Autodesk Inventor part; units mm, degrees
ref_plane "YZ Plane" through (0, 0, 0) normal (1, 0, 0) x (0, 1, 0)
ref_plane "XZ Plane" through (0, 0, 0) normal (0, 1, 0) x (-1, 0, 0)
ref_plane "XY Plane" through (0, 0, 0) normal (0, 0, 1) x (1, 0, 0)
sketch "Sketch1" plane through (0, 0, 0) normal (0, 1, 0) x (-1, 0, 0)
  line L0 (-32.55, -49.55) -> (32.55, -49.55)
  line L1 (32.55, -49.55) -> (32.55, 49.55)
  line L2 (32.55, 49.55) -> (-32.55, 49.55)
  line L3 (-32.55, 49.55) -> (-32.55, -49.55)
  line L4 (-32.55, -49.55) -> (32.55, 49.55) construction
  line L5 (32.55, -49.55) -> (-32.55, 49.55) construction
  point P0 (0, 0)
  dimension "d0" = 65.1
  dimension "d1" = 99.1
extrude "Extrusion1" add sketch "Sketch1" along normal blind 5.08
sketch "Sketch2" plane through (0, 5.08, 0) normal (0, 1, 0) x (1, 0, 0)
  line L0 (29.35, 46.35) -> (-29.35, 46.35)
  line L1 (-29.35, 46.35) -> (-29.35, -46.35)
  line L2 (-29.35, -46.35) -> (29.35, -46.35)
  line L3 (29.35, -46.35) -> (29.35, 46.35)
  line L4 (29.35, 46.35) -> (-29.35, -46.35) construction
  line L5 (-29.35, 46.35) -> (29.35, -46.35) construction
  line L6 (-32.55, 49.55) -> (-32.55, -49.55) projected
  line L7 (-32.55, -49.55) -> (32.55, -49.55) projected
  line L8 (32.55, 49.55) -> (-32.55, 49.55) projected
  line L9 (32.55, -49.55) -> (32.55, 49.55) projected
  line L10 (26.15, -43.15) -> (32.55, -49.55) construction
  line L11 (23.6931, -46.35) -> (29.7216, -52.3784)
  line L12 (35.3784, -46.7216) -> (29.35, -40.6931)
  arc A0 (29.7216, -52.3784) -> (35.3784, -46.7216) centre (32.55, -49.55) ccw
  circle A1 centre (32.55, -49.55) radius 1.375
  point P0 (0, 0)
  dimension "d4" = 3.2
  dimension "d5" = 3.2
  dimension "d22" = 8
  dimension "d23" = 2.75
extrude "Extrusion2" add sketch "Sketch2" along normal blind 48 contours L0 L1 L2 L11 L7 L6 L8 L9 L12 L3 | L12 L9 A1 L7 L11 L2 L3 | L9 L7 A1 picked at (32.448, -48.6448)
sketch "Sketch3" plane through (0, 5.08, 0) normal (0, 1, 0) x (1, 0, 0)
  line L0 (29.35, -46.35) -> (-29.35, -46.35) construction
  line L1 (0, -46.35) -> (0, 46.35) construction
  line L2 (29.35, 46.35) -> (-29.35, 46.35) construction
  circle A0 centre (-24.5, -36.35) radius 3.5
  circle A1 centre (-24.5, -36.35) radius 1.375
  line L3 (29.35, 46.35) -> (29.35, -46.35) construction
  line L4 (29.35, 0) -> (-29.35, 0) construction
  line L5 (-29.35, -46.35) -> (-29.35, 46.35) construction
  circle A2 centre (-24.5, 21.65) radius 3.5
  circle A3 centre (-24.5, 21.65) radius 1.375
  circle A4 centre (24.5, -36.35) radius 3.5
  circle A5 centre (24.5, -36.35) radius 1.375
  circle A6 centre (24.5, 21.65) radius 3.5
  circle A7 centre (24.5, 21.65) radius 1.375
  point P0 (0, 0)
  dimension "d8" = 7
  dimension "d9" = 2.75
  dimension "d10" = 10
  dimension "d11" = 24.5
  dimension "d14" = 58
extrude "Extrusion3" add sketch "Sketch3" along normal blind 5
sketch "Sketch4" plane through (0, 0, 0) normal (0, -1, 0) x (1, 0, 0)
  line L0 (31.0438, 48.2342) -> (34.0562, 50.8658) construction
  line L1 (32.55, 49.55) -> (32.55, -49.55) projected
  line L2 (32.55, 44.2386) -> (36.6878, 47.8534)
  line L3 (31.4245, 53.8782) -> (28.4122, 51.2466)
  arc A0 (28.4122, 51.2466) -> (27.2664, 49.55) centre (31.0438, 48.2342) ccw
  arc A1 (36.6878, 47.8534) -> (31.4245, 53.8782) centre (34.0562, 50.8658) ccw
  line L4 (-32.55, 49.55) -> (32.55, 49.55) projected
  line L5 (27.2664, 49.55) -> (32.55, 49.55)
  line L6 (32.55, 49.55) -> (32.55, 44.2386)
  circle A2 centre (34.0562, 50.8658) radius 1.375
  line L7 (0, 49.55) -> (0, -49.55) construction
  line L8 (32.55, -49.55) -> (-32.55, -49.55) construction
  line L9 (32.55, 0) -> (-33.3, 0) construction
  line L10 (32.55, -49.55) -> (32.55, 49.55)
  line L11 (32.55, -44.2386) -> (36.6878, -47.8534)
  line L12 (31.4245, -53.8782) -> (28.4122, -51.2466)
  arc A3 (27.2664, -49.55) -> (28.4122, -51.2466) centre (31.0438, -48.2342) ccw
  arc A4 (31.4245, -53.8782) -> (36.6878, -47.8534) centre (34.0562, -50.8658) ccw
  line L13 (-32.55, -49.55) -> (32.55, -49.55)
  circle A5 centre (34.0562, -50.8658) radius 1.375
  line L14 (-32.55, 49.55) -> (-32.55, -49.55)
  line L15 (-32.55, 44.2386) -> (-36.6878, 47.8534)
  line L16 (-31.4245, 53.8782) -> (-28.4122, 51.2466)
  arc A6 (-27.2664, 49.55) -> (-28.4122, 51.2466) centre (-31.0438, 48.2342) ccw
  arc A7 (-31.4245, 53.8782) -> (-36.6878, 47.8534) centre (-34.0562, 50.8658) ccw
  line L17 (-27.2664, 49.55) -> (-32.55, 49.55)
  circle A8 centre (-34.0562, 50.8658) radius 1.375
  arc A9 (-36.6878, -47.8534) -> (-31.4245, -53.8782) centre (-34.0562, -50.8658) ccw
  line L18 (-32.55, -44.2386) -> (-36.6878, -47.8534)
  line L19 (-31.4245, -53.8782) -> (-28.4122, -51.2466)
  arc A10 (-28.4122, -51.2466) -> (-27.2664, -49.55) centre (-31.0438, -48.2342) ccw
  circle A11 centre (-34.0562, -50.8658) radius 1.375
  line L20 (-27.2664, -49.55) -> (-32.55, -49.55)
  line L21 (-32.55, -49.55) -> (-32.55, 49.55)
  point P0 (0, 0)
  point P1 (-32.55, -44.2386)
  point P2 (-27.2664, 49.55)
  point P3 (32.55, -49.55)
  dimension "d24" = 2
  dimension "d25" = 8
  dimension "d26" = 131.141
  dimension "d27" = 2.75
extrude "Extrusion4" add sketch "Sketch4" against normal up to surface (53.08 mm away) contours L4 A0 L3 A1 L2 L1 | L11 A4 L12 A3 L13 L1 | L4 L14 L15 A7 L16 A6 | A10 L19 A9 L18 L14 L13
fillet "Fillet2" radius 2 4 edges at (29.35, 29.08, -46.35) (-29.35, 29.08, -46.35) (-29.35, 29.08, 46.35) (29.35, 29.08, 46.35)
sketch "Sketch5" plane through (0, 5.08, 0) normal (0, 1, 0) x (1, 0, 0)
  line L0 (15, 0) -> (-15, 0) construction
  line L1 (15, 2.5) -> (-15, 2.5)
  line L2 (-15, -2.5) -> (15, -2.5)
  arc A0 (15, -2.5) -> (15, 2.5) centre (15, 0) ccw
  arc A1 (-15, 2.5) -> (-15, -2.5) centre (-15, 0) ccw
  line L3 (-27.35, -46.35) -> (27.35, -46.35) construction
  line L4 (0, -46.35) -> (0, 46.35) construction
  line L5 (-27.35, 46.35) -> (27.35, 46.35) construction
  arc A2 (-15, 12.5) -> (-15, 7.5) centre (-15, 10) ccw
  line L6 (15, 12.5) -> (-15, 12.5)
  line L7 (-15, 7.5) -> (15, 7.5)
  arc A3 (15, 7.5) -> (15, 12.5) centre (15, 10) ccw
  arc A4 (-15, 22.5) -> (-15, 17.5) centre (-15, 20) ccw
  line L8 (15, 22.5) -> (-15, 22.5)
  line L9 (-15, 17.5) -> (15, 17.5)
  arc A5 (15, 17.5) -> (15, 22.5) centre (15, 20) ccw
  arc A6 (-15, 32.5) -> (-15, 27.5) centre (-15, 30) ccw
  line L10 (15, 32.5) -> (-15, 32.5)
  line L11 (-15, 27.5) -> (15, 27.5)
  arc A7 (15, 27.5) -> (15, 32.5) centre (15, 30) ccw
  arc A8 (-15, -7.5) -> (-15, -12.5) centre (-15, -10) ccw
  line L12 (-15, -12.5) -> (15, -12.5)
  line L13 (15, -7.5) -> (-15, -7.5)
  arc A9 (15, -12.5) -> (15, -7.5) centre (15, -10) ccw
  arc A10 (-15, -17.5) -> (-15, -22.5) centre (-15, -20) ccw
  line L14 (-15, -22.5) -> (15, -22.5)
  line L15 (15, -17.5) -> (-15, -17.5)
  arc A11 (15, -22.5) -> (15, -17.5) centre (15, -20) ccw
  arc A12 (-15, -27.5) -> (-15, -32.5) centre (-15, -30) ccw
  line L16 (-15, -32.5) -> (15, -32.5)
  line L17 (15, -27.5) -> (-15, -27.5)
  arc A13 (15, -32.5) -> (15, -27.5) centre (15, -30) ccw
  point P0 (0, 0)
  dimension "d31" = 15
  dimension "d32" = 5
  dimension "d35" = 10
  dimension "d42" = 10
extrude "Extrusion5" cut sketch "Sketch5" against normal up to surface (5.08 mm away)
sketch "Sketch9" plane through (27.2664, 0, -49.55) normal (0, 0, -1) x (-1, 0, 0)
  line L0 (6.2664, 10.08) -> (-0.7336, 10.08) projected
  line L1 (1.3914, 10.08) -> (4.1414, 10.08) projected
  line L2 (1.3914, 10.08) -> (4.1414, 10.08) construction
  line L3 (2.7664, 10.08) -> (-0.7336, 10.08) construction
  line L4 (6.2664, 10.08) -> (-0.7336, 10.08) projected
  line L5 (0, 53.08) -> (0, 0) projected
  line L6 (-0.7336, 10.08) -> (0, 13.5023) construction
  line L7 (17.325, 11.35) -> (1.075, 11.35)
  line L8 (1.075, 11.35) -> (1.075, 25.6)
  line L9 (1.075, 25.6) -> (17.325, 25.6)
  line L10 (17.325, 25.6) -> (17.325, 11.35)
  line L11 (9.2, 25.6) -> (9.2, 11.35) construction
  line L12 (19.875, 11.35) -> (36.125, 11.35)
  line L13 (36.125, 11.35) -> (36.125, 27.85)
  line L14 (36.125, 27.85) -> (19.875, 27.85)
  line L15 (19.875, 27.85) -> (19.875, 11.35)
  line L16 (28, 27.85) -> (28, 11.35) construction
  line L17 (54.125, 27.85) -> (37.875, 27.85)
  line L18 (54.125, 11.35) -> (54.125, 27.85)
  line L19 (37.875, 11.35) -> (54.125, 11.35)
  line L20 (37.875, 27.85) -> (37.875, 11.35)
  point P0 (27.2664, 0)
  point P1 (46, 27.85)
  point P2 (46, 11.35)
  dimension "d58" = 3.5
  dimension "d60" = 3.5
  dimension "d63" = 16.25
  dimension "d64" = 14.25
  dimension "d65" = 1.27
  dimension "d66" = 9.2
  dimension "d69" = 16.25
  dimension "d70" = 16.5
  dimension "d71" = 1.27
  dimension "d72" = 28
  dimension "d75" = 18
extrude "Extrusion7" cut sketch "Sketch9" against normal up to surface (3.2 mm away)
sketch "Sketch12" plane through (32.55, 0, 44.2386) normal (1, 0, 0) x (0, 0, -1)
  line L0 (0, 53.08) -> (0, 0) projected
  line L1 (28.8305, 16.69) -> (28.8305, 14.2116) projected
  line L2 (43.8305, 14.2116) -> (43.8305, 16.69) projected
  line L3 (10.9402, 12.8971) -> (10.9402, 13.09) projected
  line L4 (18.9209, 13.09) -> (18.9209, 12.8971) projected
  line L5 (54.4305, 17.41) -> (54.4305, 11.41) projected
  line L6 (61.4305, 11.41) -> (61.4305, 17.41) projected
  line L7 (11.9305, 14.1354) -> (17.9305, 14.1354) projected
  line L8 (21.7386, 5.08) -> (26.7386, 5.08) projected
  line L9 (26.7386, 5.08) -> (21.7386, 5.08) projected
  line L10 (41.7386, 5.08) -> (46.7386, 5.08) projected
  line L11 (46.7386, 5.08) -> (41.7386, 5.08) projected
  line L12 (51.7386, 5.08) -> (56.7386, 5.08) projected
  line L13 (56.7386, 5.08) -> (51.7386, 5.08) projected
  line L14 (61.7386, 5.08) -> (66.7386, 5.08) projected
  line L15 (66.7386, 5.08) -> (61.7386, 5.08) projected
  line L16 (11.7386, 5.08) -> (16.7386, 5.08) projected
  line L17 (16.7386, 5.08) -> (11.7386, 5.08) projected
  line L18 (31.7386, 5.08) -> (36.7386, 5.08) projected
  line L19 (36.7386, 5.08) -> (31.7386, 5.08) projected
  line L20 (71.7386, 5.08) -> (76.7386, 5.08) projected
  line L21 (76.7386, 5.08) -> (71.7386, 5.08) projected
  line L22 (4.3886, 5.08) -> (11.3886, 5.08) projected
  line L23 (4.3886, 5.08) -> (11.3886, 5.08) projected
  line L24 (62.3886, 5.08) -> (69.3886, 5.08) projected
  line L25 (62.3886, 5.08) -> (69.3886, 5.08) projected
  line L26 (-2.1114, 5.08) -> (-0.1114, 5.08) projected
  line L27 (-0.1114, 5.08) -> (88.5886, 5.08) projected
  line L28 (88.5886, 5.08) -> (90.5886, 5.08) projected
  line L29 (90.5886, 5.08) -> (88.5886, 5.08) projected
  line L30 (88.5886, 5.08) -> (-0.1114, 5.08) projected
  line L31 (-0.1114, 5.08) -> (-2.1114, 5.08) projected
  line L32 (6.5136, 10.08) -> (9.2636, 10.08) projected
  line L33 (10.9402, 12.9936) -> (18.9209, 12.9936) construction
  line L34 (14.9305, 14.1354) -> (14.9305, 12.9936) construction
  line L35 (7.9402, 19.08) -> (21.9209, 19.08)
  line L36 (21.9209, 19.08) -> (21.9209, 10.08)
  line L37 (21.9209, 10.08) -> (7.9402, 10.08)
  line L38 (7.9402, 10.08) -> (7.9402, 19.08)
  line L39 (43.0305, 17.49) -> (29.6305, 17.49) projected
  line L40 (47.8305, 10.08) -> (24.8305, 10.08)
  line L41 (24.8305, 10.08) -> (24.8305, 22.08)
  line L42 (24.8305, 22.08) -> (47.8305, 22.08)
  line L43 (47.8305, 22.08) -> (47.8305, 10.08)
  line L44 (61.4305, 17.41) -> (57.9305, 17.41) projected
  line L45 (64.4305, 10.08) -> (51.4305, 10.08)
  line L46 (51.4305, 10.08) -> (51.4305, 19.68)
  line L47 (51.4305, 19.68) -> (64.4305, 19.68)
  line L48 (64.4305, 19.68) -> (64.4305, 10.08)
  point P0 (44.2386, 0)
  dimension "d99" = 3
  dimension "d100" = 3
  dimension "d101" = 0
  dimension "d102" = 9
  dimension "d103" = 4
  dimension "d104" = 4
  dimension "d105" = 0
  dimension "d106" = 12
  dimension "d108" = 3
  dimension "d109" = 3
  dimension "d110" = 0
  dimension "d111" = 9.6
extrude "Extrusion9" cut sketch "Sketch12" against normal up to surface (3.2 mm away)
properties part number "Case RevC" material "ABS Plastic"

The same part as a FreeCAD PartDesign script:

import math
import FreeCAD as App
import Part
import Sketcher

V = App.Vector
Q = App.Units.Quantity


def edges_at(feature, points):
    """Names of the edges that pass closest to the given points."""
    edges = feature.Shape.Edges
    near = lambda p: min(range(len(edges)), key=lambda i: edges[i].distToShape(Part.Vertex(*p))[0])
    return sorted({f"Edge{near(p) + 1}" for p in points})

doc = App.newDocument("Part")
body = doc.addObject("PartDesign::Body", "Body")

# Sketch on XZ plane
sketch1 = doc.addObject("Sketcher::SketchObject", "Sketch")
body.addObject(sketch1)
sketch1.AttachmentSupport = (doc.XZ_Plane, [""])
sketch1.MapMode = "FlatFace"
sketch1.addGeometry(Part.LineSegment(V(32.55, 49.55, 0), V(32.55, -49.55, 0)), False)
sketch1.addGeometry(Part.LineSegment(V(32.55, -49.55, 0), V(-32.55, -49.55, 0)), False)
sketch1.addGeometry(Part.LineSegment(V(-32.55, -49.55, 0), V(-32.55, 49.55, 0)), False)
sketch1.addGeometry(Part.LineSegment(V(-32.55, 49.55, 0), V(32.55, 49.55, 0)), False)
sketch1.addConstraint(Sketcher.Constraint("Coincident", 0, 2, 1, 1))
sketch1.addConstraint(Sketcher.Constraint("Coincident", 1, 2, 2, 1))
sketch1.addConstraint(Sketcher.Constraint("Coincident", 2, 2, 3, 1))
sketch1.addConstraint(Sketcher.Constraint("Coincident", 3, 2, 0, 1))
sketch1.addConstraint(Sketcher.Constraint("Vertical", 0))
sketch1.addConstraint(Sketcher.Constraint("Horizontal", 1))
sketch1.addConstraint(Sketcher.Constraint("Vertical", 2))
sketch1.addConstraint(Sketcher.Constraint("Horizontal", 3))
sketch1.addConstraint(Sketcher.Constraint("Symmetric", 0, 2, 2, 2, -1, 1))
sketch1.addConstraint(Sketcher.Constraint("DistanceX", 1, 2, 1, 1, Q("65.1 mm")))
sketch1.addConstraint(Sketcher.Constraint("DistanceY", 0, 2, 0, 1, Q("99.1 mm")))
pad1 = doc.addObject("PartDesign::Pad", "Pad")
body.addObject(pad1)
pad1.Profile = sketch1
pad1.Length = 5.08
pad1.Reversed = True

# Sketch on XZ plane
sketch2 = doc.addObject("Sketcher::SketchObject", "Sketch001")
body.addObject(sketch2)
sketch2.AttachmentSupport = (doc.XZ_Plane, [""])
sketch2.MapMode = "FlatFace"
sketch2.AttachmentOffset = App.Placement(V(0, 0, -5.08), App.Rotation())
sketch2.addGeometry(Part.LineSegment(V(-32.55, 49.55, 0), V(32.55, 49.55, 0)), False)
sketch2.addGeometry(Part.LineSegment(V(32.55, 49.55, 0), V(32.55, -49.55, 0)), False)
sketch2.addGeometry(Part.LineSegment(V(32.55, -49.55, 0), V(-32.55, -49.55, 0)), False)
sketch2.addGeometry(Part.LineSegment(V(-32.55, -49.55, 0), V(-32.55, 49.55, 0)), False)
sketch2.addGeometry(Part.LineSegment(V(-29.35, -46.35, 0), V(29.35, -46.35, 0)), False)
sketch2.addGeometry(Part.LineSegment(V(29.35, -46.35, 0), V(29.35, 46.35, 0)), False)
sketch2.addGeometry(Part.LineSegment(V(29.35, 46.35, 0), V(-29.35, 46.35, 0)), False)
sketch2.addGeometry(Part.LineSegment(V(-29.35, 46.35, 0), V(-29.35, -46.35, 0)), False)
sketch2.addConstraint(Sketcher.Constraint("Coincident", 0, 2, 1, 1))
sketch2.addConstraint(Sketcher.Constraint("Coincident", 1, 2, 2, 1))
sketch2.addConstraint(Sketcher.Constraint("Coincident", 2, 2, 3, 1))
sketch2.addConstraint(Sketcher.Constraint("Coincident", 3, 2, 0, 1))
sketch2.addConstraint(Sketcher.Constraint("Coincident", 4, 2, 5, 1))
sketch2.addConstraint(Sketcher.Constraint("Coincident", 5, 2, 6, 1))
sketch2.addConstraint(Sketcher.Constraint("Coincident", 6, 2, 7, 1))
sketch2.addConstraint(Sketcher.Constraint("Coincident", 7, 2, 4, 1))
sketch2.addConstraint(Sketcher.Constraint("Horizontal", 0))
sketch2.addConstraint(Sketcher.Constraint("Vertical", 1))
sketch2.addConstraint(Sketcher.Constraint("Horizontal", 2))
sketch2.addConstraint(Sketcher.Constraint("Vertical", 3))
sketch2.addConstraint(Sketcher.Constraint("Horizontal", 4))
sketch2.addConstraint(Sketcher.Constraint("Vertical", 5))
sketch2.addConstraint(Sketcher.Constraint("Horizontal", 6))
sketch2.addConstraint(Sketcher.Constraint("Vertical", 7))
sketch2.addConstraint(Sketcher.Constraint("Symmetric", 0, 2, 2, 2, -1, 1))
sketch2.addConstraint(Sketcher.Constraint("Symmetric", 4, 2, 6, 2, -1, 1))
sketch2.addConstraint(Sketcher.Constraint("DistanceX", 4, 2, 1, 2, Q("3.2 mm")))
sketch2.addConstraint(Sketcher.Constraint("DistanceY", 1, 2, 4, 2, Q("3.2 mm")))
sketch2.addConstraint(Sketcher.Constraint("DistanceX", 0, 1, 0, 2, Q("65.1 mm")))
sketch2.addConstraint(Sketcher.Constraint("DistanceY", 1, 2, 1, 1, Q("99.1 mm")))
pad2 = doc.addObject("PartDesign::Pad", "Pad001")
body.addObject(pad2)
pad2.Profile = sketch2
pad2.Length = 48
pad2.Reversed = True

# Sketch on XZ plane
sketch3 = doc.addObject("Sketcher::SketchObject", "Sketch002")
body.addObject(sketch3)
sketch3.AttachmentSupport = (doc.XZ_Plane, [""])
sketch3.MapMode = "FlatFace"
sketch3.AttachmentOffset = App.Placement(V(0, 0, -5.08), App.Rotation())
sketch3.addGeometry(Part.Circle(V(-24.5, 36.35, 0), V(0, 0, 1), 3.5), False)
sketch3.addGeometry(Part.Circle(V(-24.5, 36.35, 0), V(0, 0, 1), 1.375), False)
sketch3.addGeometry(Part.Circle(V(-24.5, -21.65, 0), V(0, 0, 1), 3.5), False)
sketch3.addGeometry(Part.Circle(V(-24.5, -21.65, 0), V(0, 0, 1), 1.375), False)
sketch3.addGeometry(Part.Circle(V(24.5, 36.35, 0), V(0, 0, 1), 3.5), False)
sketch3.addGeometry(Part.Circle(V(24.5, 36.35, 0), V(0, 0, 1), 1.375), False)
sketch3.addGeometry(Part.Circle(V(24.5, -21.65, 0), V(0, 0, 1), 3.5), False)
sketch3.addGeometry(Part.Circle(V(24.5, -21.65, 0), V(0, 0, 1), 1.375), False)
sketch3.addConstraint(Sketcher.Constraint("Coincident", 1, 3, 0, 3))
sketch3.addConstraint(Sketcher.Constraint("Coincident", 3, 3, 2, 3))
sketch3.addConstraint(Sketcher.Constraint("Coincident", 5, 3, 4, 3))
sketch3.addConstraint(Sketcher.Constraint("Coincident", 7, 3, 6, 3))
sketch3.addConstraint(Sketcher.Constraint("Equal", 0, 2))
sketch3.addConstraint(Sketcher.Constraint("Equal", 1, 3))
sketch3.addConstraint(Sketcher.Constraint("Equal", 2, 4))
sketch3.addConstraint(Sketcher.Constraint("Equal", 3, 5))
sketch3.addConstraint(Sketcher.Constraint("Equal", 4, 6))
sketch3.addConstraint(Sketcher.Constraint("Equal", 5, 7))
sketch3.addConstraint(Sketcher.Constraint("Symmetric", 0, 3, 4, 3, -2))
sketch3.addConstraint(Sketcher.Constraint("Symmetric", 2, 3, 6, 3, -2))
sketch3.addConstraint(Sketcher.Constraint("Vertical", 1, 3, 2, 3))
sketch3.addConstraint(Sketcher.Constraint("Diameter", 0, Q("7 mm")))
sketch3.addConstraint(Sketcher.Constraint("Diameter", 1, Q("2.75 mm")))
sketch3.addConstraint(Sketcher.Constraint("DistanceY", 2, 3, 0, 3, Q("58 mm")))
sketch3.addConstraint(Sketcher.Constraint("DistanceX", 0, 3, -1, 1, Q("24.5 mm")))
sketch3.addConstraint(Sketcher.Constraint("DistanceY", -1, 1, 0, 3, Q("36.35 mm")))
pad3 = doc.addObject("PartDesign::Pad", "Pad002")
body.addObject(pad3)
pad3.Profile = sketch3
pad3.Length = 5
pad3.Reversed = True

# Sketch on XZ plane
sketch4 = doc.addObject("Sketcher::SketchObject", "Sketch003")
body.addObject(sketch4)
sketch4.AttachmentSupport = (doc.XZ_Plane, [""])
sketch4.MapMode = "FlatFace"
sketch4.addGeometry(Part.LineSegment(V(27.2664, 49.55, 0), V(32.55, 49.55, 0)), False)
sketch4.addGeometry(Part.LineSegment(V(32.55, 49.55, 0), V(32.55, 44.2386, 0)), False)
sketch4.addGeometry(Part.LineSegment(V(32.55, 44.2386, 0), V(36.6878, 47.8534, 0)), False)
sketch4.addGeometry(Part.ArcOfCircle(Part.Circle(V(34.0562, 50.8658, 0), V(0, 0, 1), 3.999984), math.radians(-48.859889), math.radians(131.141189)), False)
sketch4.addGeometry(Part.LineSegment(V(31.4245, 53.8782, 0), V(28.4122, 51.2466, 0)), False)
sketch4.addGeometry(Part.ArcOfCircle(Part.Circle(V(31.0438, 48.2342, 0), V(0, 0, 1), 3.999984), math.radians(131.140111), math.radians(160.794993)), False)
sketch4.addGeometry(Part.Circle(V(34.0562, 50.8658, 0), V(0, 0, 1), 1.375), False)
sketch4.addGeometry(Part.LineSegment(V(36.6878, -47.8534, 0), V(32.55, -44.2386, 0)), False)
sketch4.addGeometry(Part.LineSegment(V(32.55, -44.2386, 0), V(32.55, -49.55, 0)), False)
sketch4.addGeometry(Part.LineSegment(V(32.55, -49.55, 0), V(27.2664, -49.55, 0)), False)
sketch4.addGeometry(Part.ArcOfCircle(Part.Circle(V(31.0438, -48.2342, 0), V(0, 0, 1), 4.00001), math.radians(-160.794993), math.radians(-131.140111)), False)
sketch4.addGeometry(Part.LineSegment(V(28.4122, -51.2466, 0), V(31.4245, -53.8782, 0)), False)
sketch4.addGeometry(Part.ArcOfCircle(Part.Circle(V(34.0562, -50.8658, 0), V(0, 0, 1), 4.00005), math.radians(-131.141189), math.radians(48.859889)), False)
sketch4.addGeometry(Part.Circle(V(34.0562, -50.8658, 0), V(0, 0, 1), 1.375), False)
sketch4.addGeometry(Part.LineSegment(V(-32.55, 49.55, 0), V(-27.2664, 49.55, 0)), False)
sketch4.addGeometry(Part.ArcOfCircle(Part.Circle(V(-31.0438, 48.2342, 0), V(0, 0, 1), 4.00001), math.radians(19.205007), math.radians(48.859889)), False)
sketch4.addGeometry(Part.LineSegment(V(-28.4122, 51.2466, 0), V(-31.4245, 53.8782, 0)), False)
sketch4.addGeometry(Part.ArcOfCircle(Part.Circle(V(-34.0562, 50.8658, 0), V(0, 0, 1), 4.00005), math.radians(48.858811), math.radians(228.859889)), False)
sketch4.addGeometry(Part.LineSegment(V(-36.6878, 47.8534, 0), V(-32.55, 44.2386, 0)), False)
sketch4.addGeometry(Part.LineSegment(V(-32.55, 44.2386, 0), V(-32.55, 49.55, 0)), False)
sketch4.addGeometry(Part.Circle(V(-34.0562, 50.8658, 0), V(0, 0, 1), 1.375), False)
sketch4.addGeometry(Part.ArcOfCircle(Part.Circle(V(-31.0438, -48.2342, 0), V(0, 0, 1), 3.999984), math.radians(-48.859889), math.radians(-19.205007)), False)
sketch4.addGeometry(Part.LineSegment(V(-27.2664, -49.55, 0), V(-32.55, -49.55, 0)), False)
sketch4.addGeometry(Part.LineSegment(V(-32.55, -49.55, 0), V(-32.55, -44.2386, 0)), False)
sketch4.addGeometry(Part.LineSegment(V(-32.55, -44.2386, 0), V(-36.6878, -47.8534, 0)), False)
sketch4.addGeometry(Part.ArcOfCircle(Part.Circle(V(-34.0562, -50.8658, 0), V(0, 0, 1), 3.999984), math.radians(131.140111), math.radians(311.141189)), False)
sketch4.addGeometry(Part.LineSegment(V(-31.4245, -53.8782, 0), V(-28.4122, -51.2466, 0)), False)
sketch4.addGeometry(Part.Circle(V(-34.0562, -50.8658, 0), V(0, 0, 1), 1.375), False)
sketch4.addConstraint(Sketcher.Constraint("Coincident", 0, 2, 1, 1))
sketch4.addConstraint(Sketcher.Constraint("Coincident", 1, 2, 2, 1))
sketch4.addConstraint(Sketcher.Constraint("Tangent", 2, 2, 3, 1))
sketch4.addConstraint(Sketcher.Constraint("Tangent", 3, 2, 4, 1))
sketch4.addConstraint(Sketcher.Constraint("Tangent", 4, 2, 5, 1))
sketch4.addConstraint(Sketcher.Constraint("Coincident", 5, 2, 0, 1))
sketch4.addConstraint(Sketcher.Constraint("Coincident", 7, 2, 8, 1))
sketch4.addConstraint(Sketcher.Constraint("Coincident", 8, 2, 9, 1))
sketch4.addConstraint(Sketcher.Constraint("Coincident", 9, 2, 10, 1))
sketch4.addConstraint(Sketcher.Constraint("Tangent", 10, 2, 11, 1))
sketch4.addConstraint(Sketcher.Constraint("Tangent", 11, 2, 12, 1))
sketch4.addConstraint(Sketcher.Constraint("Tangent", 12, 2, 7, 1))
sketch4.addConstraint(Sketcher.Constraint("Coincident", 14, 2, 15, 1))
sketch4.addConstraint(Sketcher.Constraint("Tangent", 15, 2, 16, 1))
sketch4.addConstraint(Sketcher.Constraint("Tangent", 16, 2, 17, 1))
sketch4.addConstraint(Sketcher.Constraint("Tangent", 17, 2, 18, 1))
sketch4.addConstraint(Sketcher.Constraint("Coincident", 18, 2, 19, 1))
sketch4.addConstraint(Sketcher.Constraint("Coincident", 19, 2, 14, 1))
sketch4.addConstraint(Sketcher.Constraint("Coincident", 21, 2, 22, 1))
sketch4.addConstraint(Sketcher.Constraint("Coincident", 22, 2, 23, 1))
sketch4.addConstraint(Sketcher.Constraint("Coincident", 23, 2, 24, 1))
sketch4.addConstraint(Sketcher.Constraint("Tangent", 24, 2, 25, 1))
sketch4.addConstraint(Sketcher.Constraint("Tangent", 25, 2, 26, 1))
sketch4.addConstraint(Sketcher.Constraint("Tangent", 26, 2, 21, 1))
sketch4.addConstraint(Sketcher.Constraint("Horizontal", 0))
sketch4.addConstraint(Sketcher.Constraint("Vertical", 1))
sketch4.addConstraint(Sketcher.Constraint("Vertical", 8))
sketch4.addConstraint(Sketcher.Constraint("Horizontal", 9))
sketch4.addConstraint(Sketcher.Constraint("Horizontal", 14))
sketch4.addConstraint(Sketcher.Constraint("Vertical", 19))
sketch4.addConstraint(Sketcher.Constraint("Horizontal", 22))
sketch4.addConstraint(Sketcher.Constraint("Vertical", 23))
sketch4.addConstraint(Sketcher.Constraint("Coincident", 6, 3, 3, 3))
sketch4.addConstraint(Sketcher.Constraint("Coincident", 13, 3, 12, 3))
sketch4.addConstraint(Sketcher.Constraint("Coincident", 20, 3, 17, 3))
sketch4.addConstraint(Sketcher.Constraint("Coincident", 27, 3, 25, 3))
sketch4.addConstraint(Sketcher.Constraint("Equal", 3, 5))
sketch4.addConstraint(Sketcher.Constraint("Equal", 5, 10))
sketch4.addConstraint(Sketcher.Constraint("Equal", 10, 12))
sketch4.addConstraint(Sketcher.Constraint("Equal", 6, 13))
sketch4.addConstraint(Sketcher.Constraint("Equal", 12, 15))
sketch4.addConstraint(Sketcher.Constraint("Equal", 15, 17))
sketch4.addConstraint(Sketcher.Constraint("Equal", 13, 20))
sketch4.addConstraint(Sketcher.Constraint("Equal", 17, 21))
sketch4.addConstraint(Sketcher.Constraint("Equal", 21, 25))
sketch4.addConstraint(Sketcher.Constraint("Equal", 20, 27))
sketch4.addConstraint(Sketcher.Constraint("Symmetric", 10, 3, 15, 3, -1, 1))
sketch4.addConstraint(Sketcher.Constraint("Symmetric", 12, 3, 17, 3, -1, 1))
sketch4.addConstraint(Sketcher.Constraint("Symmetric", 5, 3, 21, 3, -1, 1))
sketch4.addConstraint(Sketcher.Constraint("Symmetric", 3, 3, 25, 3, -1, 1))
sketch4.addConstraint(Sketcher.Constraint("Symmetric", 7, 2, 18, 2, -1, 1))
sketch4.addConstraint(Sketcher.Constraint("Symmetric", 0, 2, 22, 2, -1, 1))
sketch4.addConstraint(Sketcher.Constraint("Symmetric", 5, 3, 15, 3, -2))
sketch4.addConstraint(Sketcher.Constraint("Symmetric", 3, 3, 17, 3, -2))
sketch4.addConstraint(Sketcher.Constraint("Symmetric", 1, 2, 18, 2, -2))
sketch4.addConstraint(Sketcher.Constraint("Parallel", 2, 4))
sketch4.addConstraint(Sketcher.Constraint("Parallel", 4, 24))
sketch4.addConstraint(Sketcher.Constraint("Horizontal", 5, 2, 14, 2))
sketch4.addConstraint(Sketcher.Constraint("Horizontal", 9, 2, 21, 2))
sketch4.addConstraint(Sketcher.Constraint("Radius", 3, Q("4 mm")))
sketch4.addConstraint(Sketcher.Constraint("Diameter", 6, Q("2.75 mm")))
sketch4.addConstraint(Sketcher.Constraint("Distance", 4, Q("4 mm")))
sketch4.addConstraint(Sketcher.Constraint("Angle", 2, Q("41.1406 deg")))
sketch4.addConstraint(Sketcher.Constraint("DistanceY", 10, 3, 3, 3, Q("99.1 mm")))
sketch4.addConstraint(Sketcher.Constraint("DistanceX", 15, 3, 3, 3, Q("65.1 mm")))
sketch4.addConstraint(Sketcher.Constraint("DistanceX", -1, 1, 0, 2, Q("32.55 mm")))
sketch4.addConstraint(Sketcher.Constraint("DistanceY", -1, 1, 0, 2, Q("49.55 mm")))
pad4 = doc.addObject("PartDesign::Pad", "Pad003")
body.addObject(pad4)
pad4.Profile = sketch4
pad4.Length = 53.08
pad4.Reversed = True
doc.recompute()

fillet = doc.addObject("PartDesign::Fillet", "Fillet")
body.addObject(fillet)
fillet.Base = (pad4, edges_at(pad4, [
    (29.35, 29.08, -46.35),
    (-29.35, 29.08, -46.35),
    (-29.35, 29.08, 46.35),
    (29.35, 29.08, 46.35),
]))
fillet.Radius = 2

# Sketch on XZ plane
sketch5 = doc.addObject("Sketcher::SketchObject", "Sketch004")
body.addObject(sketch5)
sketch5.AttachmentSupport = (doc.XZ_Plane, [""])
sketch5.MapMode = "FlatFace"
sketch5.AttachmentOffset = App.Placement(V(0, 0, -5.08), App.Rotation())
sketch5.addGeometry(Part.ArcOfCircle(Part.Circle(V(15, 0, 0), V(0, 0, 1), 2.5), math.radians(-90), math.radians(90)), False)
sketch5.addGeometry(Part.LineSegment(V(15, -2.5, 0), V(-15, -2.5, 0)), False)
sketch5.addGeometry(Part.ArcOfCircle(Part.Circle(V(-15, 0, 0), V(0, 0, 1), 2.5), math.radians(90), math.radians(270)), False)
sketch5.addGeometry(Part.LineSegment(V(-15, 2.5, 0), V(15, 2.5, 0)), False)
sketch5.addGeometry(Part.LineSegment(V(15, -12.5, 0), V(-15, -12.5, 0)), False)
sketch5.addGeometry(Part.ArcOfCircle(Part.Circle(V(-15, -10, 0), V(0, 0, 1), 2.5), math.radians(90), math.radians(270)), False)
sketch5.addGeometry(Part.LineSegment(V(-15, -7.5, 0), V(15, -7.5, 0)), False)
sketch5.addGeometry(Part.ArcOfCircle(Part.Circle(V(15, -10, 0), V(0, 0, 1), 2.5), math.radians(-90), math.radians(90)), False)
sketch5.addGeometry(Part.LineSegment(V(15, -22.5, 0), V(-15, -22.5, 0)), False)
sketch5.addGeometry(Part.ArcOfCircle(Part.Circle(V(-15, -20, 0), V(0, 0, 1), 2.5), math.radians(90), math.radians(270)), False)
sketch5.addGeometry(Part.LineSegment(V(-15, -17.5, 0), V(15, -17.5, 0)), False)
sketch5.addGeometry(Part.ArcOfCircle(Part.Circle(V(15, -20, 0), V(0, 0, 1), 2.5), math.radians(-90), math.radians(90)), False)
sketch5.addGeometry(Part.LineSegment(V(15, -32.5, 0), V(-15, -32.5, 0)), False)
sketch5.addGeometry(Part.ArcOfCircle(Part.Circle(V(-15, -30, 0), V(0, 0, 1), 2.5), math.radians(90), math.radians(270)), False)
sketch5.addGeometry(Part.LineSegment(V(-15, -27.5, 0), V(15, -27.5, 0)), False)
sketch5.addGeometry(Part.ArcOfCircle(Part.Circle(V(15, -30, 0), V(0, 0, 1), 2.5), math.radians(-90), math.radians(90)), False)
sketch5.addGeometry(Part.LineSegment(V(15, 7.5, 0), V(-15, 7.5, 0)), False)
sketch5.addGeometry(Part.ArcOfCircle(Part.Circle(V(-15, 10, 0), V(0, 0, 1), 2.5), math.radians(90), math.radians(270)), False)
sketch5.addGeometry(Part.LineSegment(V(-15, 12.5, 0), V(15, 12.5, 0)), False)
sketch5.addGeometry(Part.ArcOfCircle(Part.Circle(V(15, 10, 0), V(0, 0, 1), 2.5), math.radians(-90), math.radians(90)), False)
sketch5.addGeometry(Part.LineSegment(V(15, 17.5, 0), V(-15, 17.5, 0)), False)
sketch5.addGeometry(Part.ArcOfCircle(Part.Circle(V(-15, 20, 0), V(0, 0, 1), 2.5), math.radians(90), math.radians(270)), False)
sketch5.addGeometry(Part.LineSegment(V(-15, 22.5, 0), V(15, 22.5, 0)), False)
sketch5.addGeometry(Part.ArcOfCircle(Part.Circle(V(15, 20, 0), V(0, 0, 1), 2.5), math.radians(-90), math.radians(90)), False)
sketch5.addGeometry(Part.LineSegment(V(15, 27.5, 0), V(-15, 27.5, 0)), False)
sketch5.addGeometry(Part.ArcOfCircle(Part.Circle(V(-15, 30, 0), V(0, 0, 1), 2.5), math.radians(90), math.radians(270)), False)
sketch5.addGeometry(Part.LineSegment(V(-15, 32.5, 0), V(15, 32.5, 0)), False)
sketch5.addGeometry(Part.ArcOfCircle(Part.Circle(V(15, 30, 0), V(0, 0, 1), 2.5), math.radians(-90), math.radians(90)), False)
sketch5.addConstraint(Sketcher.Constraint("Tangent", 0, 1, 1, 1))
sketch5.addConstraint(Sketcher.Constraint("Tangent", 1, 2, 2, 2))
sketch5.addConstraint(Sketcher.Constraint("Tangent", 2, 1, 3, 1))
sketch5.addConstraint(Sketcher.Constraint("Tangent", 3, 2, 0, 2))
sketch5.addConstraint(Sketcher.Constraint("Tangent", 4, 2, 5, 2))
sketch5.addConstraint(Sketcher.Constraint("Tangent", 5, 1, 6, 1))
sketch5.addConstraint(Sketcher.Constraint("Tangent", 6, 2, 7, 2))
sketch5.addConstraint(Sketcher.Constraint("Tangent", 7, 1, 4, 1))
sketch5.addConstraint(Sketcher.Constraint("Tangent", 8, 2, 9, 2))
sketch5.addConstraint(Sketcher.Constraint("Tangent", 9, 1, 10, 1))
sketch5.addConstraint(Sketcher.Constraint("Tangent", 10, 2, 11, 2))
sketch5.addConstraint(Sketcher.Constraint("Tangent", 11, 1, 8, 1))
sketch5.addConstraint(Sketcher.Constraint("Tangent", 12, 2, 13, 2))
sketch5.addConstraint(Sketcher.Constraint("Tangent", 13, 1, 14, 1))
sketch5.addConstraint(Sketcher.Constraint("Tangent", 14, 2, 15, 2))
sketch5.addConstraint(Sketcher.Constraint("Tangent", 15, 1, 12, 1))
sketch5.addConstraint(Sketcher.Constraint("Tangent", 16, 2, 17, 2))
sketch5.addConstraint(Sketcher.Constraint("Tangent", 17, 1, 18, 1))
sketch5.addConstraint(Sketcher.Constraint("Tangent", 18, 2, 19, 2))
sketch5.addConstraint(Sketcher.Constraint("Tangent", 19, 1, 16, 1))
sketch5.addConstraint(Sketcher.Constraint("Tangent", 20, 2, 21, 2))
sketch5.addConstraint(Sketcher.Constraint("Tangent", 21, 1, 22, 1))
sketch5.addConstraint(Sketcher.Constraint("Tangent", 22, 2, 23, 2))
sketch5.addConstraint(Sketcher.Constraint("Tangent", 23, 1, 20, 1))
sketch5.addConstraint(Sketcher.Constraint("Tangent", 24, 2, 25, 2))
sketch5.addConstraint(Sketcher.Constraint("Tangent", 25, 1, 26, 1))
sketch5.addConstraint(Sketcher.Constraint("Tangent", 26, 2, 27, 2))
sketch5.addConstraint(Sketcher.Constraint("Tangent", 27, 1, 24, 1))
sketch5.addConstraint(Sketcher.Constraint("Horizontal", 1))
sketch5.addConstraint(Sketcher.Constraint("Horizontal", 3))
sketch5.addConstraint(Sketcher.Constraint("Horizontal", 4))
sketch5.addConstraint(Sketcher.Constraint("Horizontal", 6))
sketch5.addConstraint(Sketcher.Constraint("Horizontal", 8))
sketch5.addConstraint(Sketcher.Constraint("Horizontal", 10))
sketch5.addConstraint(Sketcher.Constraint("Horizontal", 12))
sketch5.addConstraint(Sketcher.Constraint("Horizontal", 14))
sketch5.addConstraint(Sketcher.Constraint("Horizontal", 16))
sketch5.addConstraint(Sketcher.Constraint("Horizontal", 18))
sketch5.addConstraint(Sketcher.Constraint("Horizontal", 20))
sketch5.addConstraint(Sketcher.Constraint("Horizontal", 22))
sketch5.addConstraint(Sketcher.Constraint("Horizontal", 24))
sketch5.addConstraint(Sketcher.Constraint("Horizontal", 26))
sketch5.addConstraint(Sketcher.Constraint("Equal", 2, 5))
sketch5.addConstraint(Sketcher.Constraint("Equal", 7, 9))
sketch5.addConstraint(Sketcher.Constraint("Equal", 11, 13))
sketch5.addConstraint(Sketcher.Constraint("Equal", 15, 17))
sketch5.addConstraint(Sketcher.Constraint("Equal", 19, 21))
sketch5.addConstraint(Sketcher.Constraint("Equal", 23, 25))
sketch5.addConstraint(Sketcher.Constraint("Symmetric", 0, 3, 2, 3, -1, 1))
sketch5.addConstraint(Sketcher.Constraint("Symmetric", 7, 3, 17, 3, -1, 1))
sketch5.addConstraint(Sketcher.Constraint("Symmetric", 11, 3, 21, 3, -1, 1))
sketch5.addConstraint(Sketcher.Constraint("Symmetric", 15, 3, 25, 3, -1, 1))
sketch5.addConstraint(Sketcher.Constraint("Vertical", 2, 3, 5, 3))
sketch5.addConstraint(Sketcher.Constraint("Vertical", 0, 3, 7, 3))
sketch5.addConstraint(Sketcher.Constraint("Vertical", 5, 3, 9, 3))
sketch5.addConstraint(Sketcher.Constraint("Vertical", 7, 3, 11, 3))
sketch5.addConstraint(Sketcher.Constraint("Vertical", 9, 3, 13, 3))
sketch5.addConstraint(Sketcher.Constraint("Vertical", 11, 3, 15, 3))
sketch5.addConstraint(Sketcher.Constraint("Vertical", 15, 3, 19, 3))
sketch5.addConstraint(Sketcher.Constraint("Vertical", 19, 3, 23, 3))
sketch5.addConstraint(Sketcher.Constraint("Vertical", 23, 3, 27, 3))
sketch5.addConstraint(Sketcher.Constraint("Radius", 0, Q("2.5 mm")))
sketch5.addConstraint(Sketcher.Constraint("DistanceX", -1, 1, 0, 3, Q("15 mm")))
sketch5.addConstraint(Sketcher.Constraint("DistanceY", 5, 3, -1, 1, Q("10 mm")))
sketch5.addConstraint(Sketcher.Constraint("DistanceY", 9, 3, 5, 3, Q("10 mm")))
sketch5.addConstraint(Sketcher.Constraint("DistanceY", 13, 3, 9, 3, Q("10 mm")))
pocket1 = doc.addObject("PartDesign::Pocket", "Pocket")
body.addObject(pocket1)
pocket1.Profile = sketch5
pocket1.Length = 5.08
pocket1.Reversed = True

# Sketch on XY plane
sketch6 = doc.addObject("Sketcher::SketchObject", "Sketch005")
body.addObject(sketch6)
sketch6.AttachmentSupport = (doc.XY_Plane, [""])
sketch6.MapMode = "FlatFace"
sketch6.AttachmentOffset = App.Placement(V(0, 0, -49.55), App.Rotation())
sketch6.addGeometry(Part.LineSegment(V(26.1914, 11.35, 0), V(9.9414, 11.35, 0)), False)
sketch6.addGeometry(Part.LineSegment(V(9.9414, 11.35, 0), V(9.9414, 25.6, 0)), False)
sketch6.addGeometry(Part.LineSegment(V(9.9414, 25.6, 0), V(26.1914, 25.6, 0)), False)
sketch6.addGeometry(Part.LineSegment(V(26.1914, 25.6, 0), V(26.1914, 11.35, 0)), False)
sketch6.addGeometry(Part.LineSegment(V(7.3914, 27.85, 0), V(7.3914, 11.35, 0)), False)
sketch6.addGeometry(Part.LineSegment(V(7.3914, 11.35, 0), V(-8.8586, 11.35, 0)), False)
sketch6.addGeometry(Part.LineSegment(V(-8.8586, 11.35, 0), V(-8.8586, 27.85, 0)), False)
sketch6.addGeometry(Part.LineSegment(V(-8.8586, 27.85, 0), V(7.3914, 27.85, 0)), False)
sketch6.addGeometry(Part.LineSegment(V(-26.8586, 11.35, 0), V(-26.8586, 27.85, 0)), False)
sketch6.addGeometry(Part.LineSegment(V(-26.8586, 27.85, 0), V(-10.6086, 27.85, 0)), False)
sketch6.addGeometry(Part.LineSegment(V(-10.6086, 27.85, 0), V(-10.6086, 11.35, 0)), False)
sketch6.addGeometry(Part.LineSegment(V(-10.6086, 11.35, 0), V(-26.8586, 11.35, 0)), False)
sketch6.addConstraint(Sketcher.Constraint("Coincident", 0, 2, 1, 1))
sketch6.addConstraint(Sketcher.Constraint("Coincident", 1, 2, 2, 1))
sketch6.addConstraint(Sketcher.Constraint("Coincident", 2, 2, 3, 1))
sketch6.addConstraint(Sketcher.Constraint("Coincident", 3, 2, 0, 1))
sketch6.addConstraint(Sketcher.Constraint("Coincident", 4, 2, 5, 1))
sketch6.addConstraint(Sketcher.Constraint("Coincident", 5, 2, 6, 1))
sketch6.addConstraint(Sketcher.Constraint("Coincident", 6, 2, 7, 1))
sketch6.addConstraint(Sketcher.Constraint("Coincident", 7, 2, 4, 1))
sketch6.addConstraint(Sketcher.Constraint("Coincident", 8, 2, 9, 1))
sketch6.addConstraint(Sketcher.Constraint("Coincident", 9, 2, 10, 1))
sketch6.addConstraint(Sketcher.Constraint("Coincident", 10, 2, 11, 1))
sketch6.addConstraint(Sketcher.Constraint("Coincident", 11, 2, 8, 1))
sketch6.addConstraint(Sketcher.Constraint("Horizontal", 0))
sketch6.addConstraint(Sketcher.Constraint("Vertical", 1))
sketch6.addConstraint(Sketcher.Constraint("Horizontal", 2))
sketch6.addConstraint(Sketcher.Constraint("Vertical", 3))
sketch6.addConstraint(Sketcher.Constraint("Vertical", 4))
sketch6.addConstraint(Sketcher.Constraint("Horizontal", 5))
sketch6.addConstraint(Sketcher.Constraint("Vertical", 6))
sketch6.addConstraint(Sketcher.Constraint("Horizontal", 7))
sketch6.addConstraint(Sketcher.Constraint("Vertical", 8))
sketch6.addConstraint(Sketcher.Constraint("Horizontal", 9))
sketch6.addConstraint(Sketcher.Constraint("Vertical", 10))
sketch6.addConstraint(Sketcher.Constraint("Horizontal", 11))
sketch6.addConstraint(Sketcher.Constraint("Horizontal", 3, 2, 4, 2))
sketch6.addConstraint(Sketcher.Constraint("Horizontal", 7, 2, 8, 2))
sketch6.addConstraint(Sketcher.Constraint("Horizontal", 5, 2, 10, 2))
sketch6.addConstraint(Sketcher.Constraint("Equal", 2, 5))
sketch6.addConstraint(Sketcher.Constraint("Equal", 7, 9))
sketch6.addConstraint(Sketcher.Constraint("DistanceY", 4, 2, 4, 1, Q("16.5 mm")))
sketch6.addConstraint(Sketcher.Constraint("DistanceX", 8, 2, 6, 2, Q("18 mm")))
sketch6.addConstraint(Sketcher.Constraint("DistanceX", 0, 2, 0, 1, Q("16.25 mm")))
sketch6.addConstraint(Sketcher.Constraint("DistanceY", 1, 1, 1, 2, Q("14.25 mm")))
sketch6.addConstraint(Sketcher.Constraint("DistanceY", -1, 1, 1, 2, Q("25.6 mm")))
sketch6.addConstraint(Sketcher.Constraint("DistanceX", 4, 2, 3, 2, Q("18.8 mm")))
sketch6.addConstraint(Sketcher.Constraint("DistanceX", -1, 1, 0, 2, Q("9.9414 mm")))
pocket2 = doc.addObject("PartDesign::Pocket", "Pocket001")
body.addObject(pocket2)
pocket2.Profile = sketch6
pocket2.Length = 3.2
pocket2.Reversed = True

# Sketch on YZ plane
sketch7 = doc.addObject("Sketcher::SketchObject", "Sketch006")
body.addObject(sketch7)
sketch7.AttachmentSupport = (doc.YZ_Plane, [""])
sketch7.MapMode = "FlatFace"
sketch7.AttachmentOffset = App.Placement(V(0, 0, 32.55), App.Rotation())
sketch7.addGeometry(Part.LineSegment(V(19.08, 36.2984, 0), V(10.08, 36.2984, 0)), False)
sketch7.addGeometry(Part.LineSegment(V(10.08, 36.2984, 0), V(10.08, 22.3177, 0)), False)
sketch7.addGeometry(Part.LineSegment(V(10.08, 22.3177, 0), V(19.08, 22.3177, 0)), False)
sketch7.addGeometry(Part.LineSegment(V(19.08, 22.3177, 0), V(19.08, 36.2984, 0)), False)
sketch7.addGeometry(Part.LineSegment(V(10.08, 19.4081, 0), V(10.08, -3.5919, 0)), False)
sketch7.addGeometry(Part.LineSegment(V(10.08, -3.5919, 0), V(22.08, -3.5919, 0)), False)
sketch7.addGeometry(Part.LineSegment(V(22.08, -3.5919, 0), V(22.08, 19.4081, 0)), False)
sketch7.addGeometry(Part.LineSegment(V(22.08, 19.4081, 0), V(10.08, 19.4081, 0)), False)
sketch7.addGeometry(Part.LineSegment(V(10.08, -7.1919, 0), V(10.08, -20.1919, 0)), False)
sketch7.addGeometry(Part.LineSegment(V(10.08, -20.1919, 0), V(19.68, -20.1919, 0)), False)
sketch7.addGeometry(Part.LineSegment(V(19.68, -20.1919, 0), V(19.68, -7.1919, 0)), False)
sketch7.addGeometry(Part.LineSegment(V(19.68, -7.1919, 0), V(10.08, -7.1919, 0)), False)
sketch7.addConstraint(Sketcher.Constraint("Coincident", 0, 2, 1, 1))
sketch7.addConstraint(Sketcher.Constraint("Coincident", 1, 2, 2, 1))
sketch7.addConstraint(Sketcher.Constraint("Coincident", 2, 2, 3, 1))
sketch7.addConstraint(Sketcher.Constraint("Coincident", 3, 2, 0, 1))
sketch7.addConstraint(Sketcher.Constraint("Coincident", 4, 2, 5, 1))
sketch7.addConstraint(Sketcher.Constraint("Coincident", 5, 2, 6, 1))
sketch7.addConstraint(Sketcher.Constraint("Coincident", 6, 2, 7, 1))
sketch7.addConstraint(Sketcher.Constraint("Coincident", 7, 2, 4, 1))
sketch7.addConstraint(Sketcher.Constraint("Coincident", 8, 2, 9, 1))
sketch7.addConstraint(Sketcher.Constraint("Coincident", 9, 2, 10, 1))
sketch7.addConstraint(Sketcher.Constraint("Coincident", 10, 2, 11, 1))
sketch7.addConstraint(Sketcher.Constraint("Coincident", 11, 2, 8, 1))
sketch7.addConstraint(Sketcher.Constraint("Horizontal", 0))
sketch7.addConstraint(Sketcher.Constraint("Vertical", 1))
sketch7.addConstraint(Sketcher.Constraint("Horizontal", 2))
sketch7.addConstraint(Sketcher.Constraint("Vertical", 3))
sketch7.addConstraint(Sketcher.Constraint("Vertical", 4))
sketch7.addConstraint(Sketcher.Constraint("Horizontal", 5))
sketch7.addConstraint(Sketcher.Constraint("Vertical", 6))
sketch7.addConstraint(Sketcher.Constraint("Horizontal", 7))
sketch7.addConstraint(Sketcher.Constraint("Vertical", 8))
sketch7.addConstraint(Sketcher.Constraint("Horizontal", 9))
sketch7.addConstraint(Sketcher.Constraint("Vertical", 10))
sketch7.addConstraint(Sketcher.Constraint("Horizontal", 11))
sketch7.addConstraint(Sketcher.Constraint("Vertical", 1, 2, 4, 2))
sketch7.addConstraint(Sketcher.Constraint("Vertical", 7, 2, 8, 2))
sketch7.addConstraint(Sketcher.Constraint("DistanceX", 0, 2, 0, 1, Q("9 mm")))
sketch7.addConstraint(Sketcher.Constraint("DistanceX", 5, 1, 5, 2, Q("12 mm")))
sketch7.addConstraint(Sketcher.Constraint("DistanceX", 9, 1, 9, 2, Q("9.6 mm")))
sketch7.addConstraint(Sketcher.Constraint("DistanceY", 4, 2, 4, 1, Q("23 mm")))
sketch7.addConstraint(Sketcher.Constraint("DistanceY", 8, 2, 8, 1, Q("13 mm")))
sketch7.addConstraint(Sketcher.Constraint("DistanceY", 8, 2, 4, 2, Q("16.6 mm")))
sketch7.addConstraint(Sketcher.Constraint("DistanceX", -1, 1, 0, 2, Q("10.08 mm")))
sketch7.addConstraint(Sketcher.Constraint("DistanceY", 1, 2, 1, 1, Q("13.9807 mm")))
sketch7.addConstraint(Sketcher.Constraint("DistanceY", 4, 2, -1, 1, Q("3.592 mm")))
sketch7.addConstraint(Sketcher.Constraint("DistanceY", -1, 1, 0, 2, Q("36.2984 mm")))
pocket3 = doc.addObject("PartDesign::Pocket", "Pocket002")
body.addObject(pocket3)
pocket3.Profile = sketch7
pocket3.Length = 3.2

doc.recompute()
